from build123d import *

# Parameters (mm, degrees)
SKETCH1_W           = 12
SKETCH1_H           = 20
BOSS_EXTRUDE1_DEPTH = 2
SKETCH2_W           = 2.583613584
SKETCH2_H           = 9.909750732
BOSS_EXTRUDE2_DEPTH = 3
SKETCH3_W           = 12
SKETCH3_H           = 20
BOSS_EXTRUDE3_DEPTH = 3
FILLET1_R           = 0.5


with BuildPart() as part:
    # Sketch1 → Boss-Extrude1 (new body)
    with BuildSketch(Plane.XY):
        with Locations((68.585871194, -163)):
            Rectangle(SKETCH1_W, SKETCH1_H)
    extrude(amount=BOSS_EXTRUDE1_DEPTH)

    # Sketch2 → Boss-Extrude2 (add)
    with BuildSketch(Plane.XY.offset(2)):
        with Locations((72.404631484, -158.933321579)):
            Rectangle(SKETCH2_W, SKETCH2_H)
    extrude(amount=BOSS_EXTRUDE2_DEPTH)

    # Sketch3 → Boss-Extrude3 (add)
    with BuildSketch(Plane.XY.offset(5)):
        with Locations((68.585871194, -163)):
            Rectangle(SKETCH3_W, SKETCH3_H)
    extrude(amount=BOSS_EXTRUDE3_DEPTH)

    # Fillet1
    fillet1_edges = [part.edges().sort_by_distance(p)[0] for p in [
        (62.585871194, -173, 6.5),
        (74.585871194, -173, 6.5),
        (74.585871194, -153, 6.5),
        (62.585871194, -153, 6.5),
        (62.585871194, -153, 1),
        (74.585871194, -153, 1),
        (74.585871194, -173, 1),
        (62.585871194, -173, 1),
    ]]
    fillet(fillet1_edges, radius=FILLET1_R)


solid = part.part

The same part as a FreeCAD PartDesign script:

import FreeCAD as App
import Part
import Sketcher

V = App.Vector
Q = App.Units.Quantity


def edges_at(feature, points):
    """Names of the edges that pass closest to the given points."""
    edges = feature.Shape.Edges
    near = lambda p: min(range(len(edges)), key=lambda i: edges[i].distToShape(Part.Vertex(*p))[0])
    return sorted({f"Edge{near(p) + 1}" for p in points})

doc = App.newDocument("Part")
body = doc.addObject("PartDesign::Body", "Body")

# Sketch on XY plane
sketch1 = body.newObject("Sketcher::SketchObject", "Sketch")
sketch1.AttachmentSupport = (doc.getObject("XY_Plane"), [""])
sketch1.MapMode = "FlatFace"
sketch1.addGeometry(Part.LineSegment(V(63, -153, 0), V(63, -173, 0)), False)
sketch1.addGeometry(Part.LineSegment(V(63, -173, 0), V(75, -173, 0)), False)
sketch1.addGeometry(Part.LineSegment(V(75, -173, 0), V(75, -153, 0)), False)
sketch1.addGeometry(Part.LineSegment(V(75, -153, 0), V(63, -153, 0)), False)
sketch1.addConstraint(Sketcher.Constraint("Coincident", 0, 2, 1, 1))
sketch1.addConstraint(Sketcher.Constraint("Coincident", 1, 2, 2, 1))
sketch1.addConstraint(Sketcher.Constraint("Coincident", 2, 2, 3, 1))
sketch1.addConstraint(Sketcher.Constraint("Coincident", 3, 2, 0, 1))
sketch1.addConstraint(Sketcher.Constraint("Vertical", 0))
sketch1.addConstraint(Sketcher.Constraint("Horizontal", 1))
sketch1.addConstraint(Sketcher.Constraint("Vertical", 2))
sketch1.addConstraint(Sketcher.Constraint("Horizontal", 3))
sketch1.addConstraint(Sketcher.Constraint("DistanceX", 1, 1, 1, 2, Q("12 mm")))
sketch1.addConstraint(Sketcher.Constraint("DistanceY", 0, 2, 0, 1, Q("20 mm")))
sketch1.addConstraint(Sketcher.Constraint("DistanceY", 0, 2, -1, 1, Q("173 mm")))
sketch1.addConstraint(Sketcher.Constraint("DistanceX", -1, 1, 0, 2, Q("62.585871 mm")))
pad1 = body.newObject("PartDesign::Pad", "Pad")
pad1.Profile = sketch1
pad1.Length = 2

# Sketch on XY plane
sketch2 = body.newObject("Sketcher::SketchObject", "Sketch001")
sketch2.AttachmentSupport = (doc.getObject("XY_Plane"), [""])
sketch2.MapMode = "FlatFace"
sketch2.AttachmentOffset = App.Placement(V(0, 0, 2), App.Rotation())
sketch2.addGeometry(Part.LineSegment(V(71.1, -154, 0), V(71.1, -163.9, 0)), False)
sketch2.addGeometry(Part.LineSegment(V(71.1, -163.9, 0), V(73.7, -163.9, 0)), False)
sketch2.addGeometry(Part.LineSegment(V(73.7, -163.9, 0), V(73.7, -154, 0)), False)
sketch2.addGeometry(Part.LineSegment(V(73.7, -154, 0), V(71.1, -154, 0)), False)
sketch2.addConstraint(Sketcher.Constraint("Coincident", 0, 2, 1, 1))
sketch2.addConstraint(Sketcher.Constraint("Coincident", 1, 2, 2, 1))
sketch2.addConstraint(Sketcher.Constraint("Coincident", 2, 2, 3, 1))
sketch2.addConstraint(Sketcher.Constraint("Coincident", 3, 2, 0, 1))
sketch2.addConstraint(Sketcher.Constraint("Vertical", 0))
sketch2.addConstraint(Sketcher.Constraint("Horizontal", 1))
sketch2.addConstraint(Sketcher.Constraint("Vertical", 2))
sketch2.addConstraint(Sketcher.Constraint("Horizontal", 3))
sketch2.addConstraint(Sketcher.Constraint("DistanceY", 0, 2, 0, 1, Q("9.909751 mm")))
sketch2.addConstraint(Sketcher.Constraint("DistanceX", 1, 1, 1, 2, Q("2.583614 mm")))
sketch2.addConstraint(Sketcher.Constraint("DistanceX", -1, 1, 1, 2, Q("73.696438 mm")))
sketch2.addConstraint(Sketcher.Constraint("DistanceY", 0, 2, -1, 1, Q("163.888197 mm")))
pad2 = body.newObject("PartDesign::Pad", "Pad001")
pad2.Profile = sketch2
pad2.Length = 3

# Sketch on XY plane
sketch3 = body.newObject("Sketcher::SketchObject", "Sketch002")
sketch3.AttachmentSupport = (doc.getObject("XY_Plane"), [""])
sketch3.MapMode = "FlatFace"
sketch3.AttachmentOffset = App.Placement(V(0, 0, 5), App.Rotation())
sketch3.addGeometry(Part.LineSegment(V(63, -153, 0), V(63, -173, 0)), False)
sketch3.addGeometry(Part.LineSegment(V(63, -173, 0), V(75, -173, 0)), False)
sketch3.addGeometry(Part.LineSegment(V(75, -173, 0), V(75, -153, 0)), False)
sketch3.addGeometry(Part.LineSegment(V(75, -153, 0), V(63, -153, 0)), False)
sketch3.addConstraint(Sketcher.Constraint("Coincident", 0, 2, 1, 1))
sketch3.addConstraint(Sketcher.Constraint("Coincident", 1, 2, 2, 1))
sketch3.addConstraint(Sketcher.Constraint("Coincident", 2, 2, 3, 1))
sketch3.addConstraint(Sketcher.Constraint("Coincident", 3, 2, 0, 1))
sketch3.addConstraint(Sketcher.Constraint("Vertical", 0))
sketch3.addConstraint(Sketcher.Constraint("Horizontal", 1))
sketch3.addConstraint(Sketcher.Constraint("Vertical", 2))
sketch3.addConstraint(Sketcher.Constraint("Horizontal", 3))
sketch3.addConstraint(Sketcher.Constraint("DistanceX", 1, 1, 1, 2, Q("12 mm")))
sketch3.addConstraint(Sketcher.Constraint("DistanceY", 0, 2, 0, 1, Q("20 mm")))
sketch3.addConstraint(Sketcher.Constraint("DistanceY", 0, 2, -1, 1, Q("173 mm")))
sketch3.addConstraint(Sketcher.Constraint("DistanceX", -1, 1, 0, 2, Q("62.585871 mm")))
pad3 = body.newObject("PartDesign::Pad", "Pad002")
pad3.Profile = sketch3
pad3.Length = 3
doc.recompute()

fillet = body.newObject("PartDesign::Fillet", "Fillet")
fillet.Base = (pad3, edges_at(pad3, [
    (62.586, -173, 6.5),
    (74.586, -173, 6.5),
    (74.586, -153, 6.5),
    (62.586, -153, 6.5),
    (62.586, -153, 1),
    (74.586, -153, 1),
    (74.586, -173, 1),
    (62.586, -173, 1),
]))
fillet.Radius = 0.5

doc.recompute()
